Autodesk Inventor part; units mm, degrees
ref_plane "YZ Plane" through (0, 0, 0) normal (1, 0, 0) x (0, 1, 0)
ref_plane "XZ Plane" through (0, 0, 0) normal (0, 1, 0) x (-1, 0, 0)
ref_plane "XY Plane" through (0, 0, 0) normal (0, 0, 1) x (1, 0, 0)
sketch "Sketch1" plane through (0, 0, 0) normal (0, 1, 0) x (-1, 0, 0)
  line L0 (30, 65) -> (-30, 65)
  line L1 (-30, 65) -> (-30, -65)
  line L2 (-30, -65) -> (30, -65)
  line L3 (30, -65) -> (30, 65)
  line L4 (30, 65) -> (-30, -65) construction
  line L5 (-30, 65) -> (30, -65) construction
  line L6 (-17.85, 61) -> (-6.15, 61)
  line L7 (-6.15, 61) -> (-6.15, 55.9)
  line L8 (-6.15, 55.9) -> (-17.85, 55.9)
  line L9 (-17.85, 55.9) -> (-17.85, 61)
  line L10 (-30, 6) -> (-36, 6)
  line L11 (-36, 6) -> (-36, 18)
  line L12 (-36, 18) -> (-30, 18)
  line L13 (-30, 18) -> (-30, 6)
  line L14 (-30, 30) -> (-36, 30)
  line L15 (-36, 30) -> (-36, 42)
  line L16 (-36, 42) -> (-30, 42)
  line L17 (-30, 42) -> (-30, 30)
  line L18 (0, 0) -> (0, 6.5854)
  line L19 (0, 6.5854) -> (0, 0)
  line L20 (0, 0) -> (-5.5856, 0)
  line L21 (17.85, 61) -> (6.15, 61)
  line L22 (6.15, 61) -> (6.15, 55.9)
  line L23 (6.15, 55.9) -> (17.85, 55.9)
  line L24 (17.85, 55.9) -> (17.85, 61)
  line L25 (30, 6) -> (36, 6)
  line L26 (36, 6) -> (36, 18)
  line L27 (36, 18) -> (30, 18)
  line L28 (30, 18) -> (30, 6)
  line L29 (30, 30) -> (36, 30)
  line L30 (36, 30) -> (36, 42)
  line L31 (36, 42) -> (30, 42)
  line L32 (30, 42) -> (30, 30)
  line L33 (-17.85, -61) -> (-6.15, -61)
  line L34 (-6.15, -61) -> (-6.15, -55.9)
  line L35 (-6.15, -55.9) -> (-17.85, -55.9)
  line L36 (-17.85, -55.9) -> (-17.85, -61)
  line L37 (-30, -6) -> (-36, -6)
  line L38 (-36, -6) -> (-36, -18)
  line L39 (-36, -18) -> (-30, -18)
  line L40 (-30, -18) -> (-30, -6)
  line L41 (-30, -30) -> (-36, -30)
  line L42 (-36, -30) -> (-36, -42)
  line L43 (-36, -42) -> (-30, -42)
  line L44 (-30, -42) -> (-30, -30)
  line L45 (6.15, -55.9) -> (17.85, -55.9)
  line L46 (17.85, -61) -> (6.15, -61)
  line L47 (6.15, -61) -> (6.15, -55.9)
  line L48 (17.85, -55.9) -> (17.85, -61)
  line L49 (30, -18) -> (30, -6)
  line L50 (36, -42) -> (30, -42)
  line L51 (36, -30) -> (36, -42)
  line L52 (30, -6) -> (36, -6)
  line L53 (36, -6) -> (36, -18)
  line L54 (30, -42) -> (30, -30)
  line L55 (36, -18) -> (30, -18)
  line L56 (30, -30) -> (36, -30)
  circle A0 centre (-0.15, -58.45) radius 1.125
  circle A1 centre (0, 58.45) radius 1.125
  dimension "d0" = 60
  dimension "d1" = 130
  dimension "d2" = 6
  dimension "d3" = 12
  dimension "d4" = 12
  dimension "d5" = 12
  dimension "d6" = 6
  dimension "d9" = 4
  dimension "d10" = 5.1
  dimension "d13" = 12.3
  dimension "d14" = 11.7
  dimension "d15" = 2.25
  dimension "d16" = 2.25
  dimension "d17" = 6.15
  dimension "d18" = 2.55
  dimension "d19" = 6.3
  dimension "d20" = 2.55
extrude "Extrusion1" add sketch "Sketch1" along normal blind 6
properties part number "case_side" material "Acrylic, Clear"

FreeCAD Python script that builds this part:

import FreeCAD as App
import Part
import Sketcher


def add_polygon(sketch, points):
    """Adds a closed chain of lines whose ends are joined by coincident constraints."""
    first, n = sketch.GeometryCount, len(points)
    for a, b in zip(points, points[1:] + points[:1]):
        sketch.addGeometry(Part.LineSegment(App.Vector(*a, 0), App.Vector(*b, 0)), False)
    for i in range(n):
        sketch.addConstraint(Sketcher.Constraint("Coincident", first + i, 2, first + (i + 1) % n, 1))

doc = App.newDocument("Part")
body = doc.addObject("PartDesign::Body", "Body")

# Sketch on XZ plane
sketch1 = body.newObject("Sketcher::SketchObject", "Sketch")
sketch1.AttachmentSupport = (doc.getObject("XZ_Plane"), [""])
sketch1.MapMode = "FlatFace"
add_polygon(sketch1, [(-30, 42), (-30, 65), (30, 65), (30, 42), (36, 42), (36, 30), (30, 30), (30, 18), (36, 18), (36, 6), (30, 6), (30, -6), (36, -6), (36, -18), (30, -18), (30, -30), (36, -30), (36, -42), (30, -42), (30, -65), (-30, -65), (-30, -42), (-36, -42), (-36, -30), (-30, -30), (-30, -18), (-36, -18), (-36, -6), (-30, -6), (-30, 6), (-36, 6), (-36, 18), (-30, 18), (-30, 30), (-36, 30), (-36, 42)])  # lines 0-35
add_polygon(sketch1, [(6.2, -61), (17.9, -61), (17.9, -55.9), (6.2, -55.9)])  # lines 36-39
sketch1.addGeometry(Part.Circle(App.Vector(0.1, -58.5, 0), App.Vector(0, 0, 1), 1.1), False)  # 40
add_polygon(sketch1, [(-6.2, -61), (-6.2, -55.9), (-17.9, -55.9), (-17.9, -61)])  # lines 41-44
add_polygon(sketch1, [(17.9, 55.9), (17.9, 61), (6.2, 61), (6.2, 55.9)])  # lines 45-48
sketch1.addGeometry(Part.Circle(App.Vector(0, 58.5, 0), App.Vector(0, 0, 1), 1.1), False)  # 49
add_polygon(sketch1, [(-6.2, 61), (-17.9, 61), (-17.9, 55.9), (-6.2, 55.9)])  # lines 50-53
sketch1.addConstraint(Sketcher.Constraint("Vertical", 0))
sketch1.addConstraint(Sketcher.Constraint("Horizontal", 1))
sketch1.addConstraint(Sketcher.Constraint("Vertical", 2))
sketch1.addConstraint(Sketcher.Constraint("Horizontal", 3))
sketch1.addConstraint(Sketcher.Constraint("Vertical", 4))
sketch1.addConstraint(Sketcher.Constraint("Horizontal", 5))
sketch1.addConstraint(Sketcher.Constraint("Vertical", 6))
sketch1.addConstraint(Sketcher.Constraint("Horizontal", 7))
sketch1.addConstraint(Sketcher.Constraint("Vertical", 8))
sketch1.addConstraint(Sketcher.Constraint("Horizontal", 9))
sketch1.addConstraint(Sketcher.Constraint("Vertical", 10))
sketch1.addConstraint(Sketcher.Constraint("Horizontal", 11))
sketch1.addConstraint(Sketcher.Constraint("Vertical", 12))
sketch1.addConstraint(Sketcher.Constraint("Horizontal", 13))
sketch1.addConstraint(Sketcher.Constraint("Vertical", 14))
sketch1.addConstraint(Sketcher.Constraint("Horizontal", 15))
sketch1.addConstraint(Sketcher.Constraint("Vertical", 16))
sketch1.addConstraint(Sketcher.Constraint("Horizontal", 17))
sketch1.addConstraint(Sketcher.Constraint("Vertical", 18))
sketch1.addConstraint(Sketcher.Constraint("Horizontal", 19))
sketch1.addConstraint(Sketcher.Constraint("Vertical", 20))
sketch1.addConstraint(Sketcher.Constraint("Horizontal", 21))
sketch1.addConstraint(Sketcher.Constraint("Vertical", 22))
sketch1.addConstraint(Sketcher.Constraint("Horizontal", 23))
sketch1.addConstraint(Sketcher.Constraint("Vertical", 24))
sketch1.addConstraint(Sketcher.Constraint("Horizontal", 25))
sketch1.addConstraint(Sketcher.Constraint("Vertical", 26))
sketch1.addConstraint(Sketcher.Constraint("Horizontal", 27))
sketch1.addConstraint(Sketcher.Constraint("Vertical", 28))
sketch1.addConstraint(Sketcher.Constraint("Horizontal", 29))
sketch1.addConstraint(Sketcher.Constraint("Vertical", 30))
sketch1.addConstraint(Sketcher.Constraint("Horizontal", 31))
sketch1.addConstraint(Sketcher.Constraint("Vertical", 32))
sketch1.addConstraint(Sketcher.Constraint("Horizontal", 33))
sketch1.addConstraint(Sketcher.Constraint("Vertical", 34))
sketch1.addConstraint(Sketcher.Constraint("Horizontal", 35))
sketch1.addConstraint(Sketcher.Constraint("Horizontal", 36))
sketch1.addConstraint(Sketcher.Constraint("Vertical", 37))
sketch1.addConstraint(Sketcher.Constraint("Horizontal", 38))
sketch1.addConstraint(Sketcher.Constraint("Vertical", 39))
sketch1.addConstraint(Sketcher.Constraint("Vertical", 41))
sketch1.addConstraint(Sketcher.Constraint("Horizontal", 42))
sketch1.addConstraint(Sketcher.Constraint("Vertical", 43))
sketch1.addConstraint(Sketcher.Constraint("Horizontal", 44))
sketch1.addConstraint(Sketcher.Constraint("Vertical", 45))
sketch1.addConstraint(Sketcher.Constraint("Horizontal", 46))
sketch1.addConstraint(Sketcher.Constraint("Vertical", 47))
sketch1.addConstraint(Sketcher.Constraint("Horizontal", 48))
sketch1.addConstraint(Sketcher.Constraint("Horizontal", 50))
sketch1.addConstraint(Sketcher.Constraint("Vertical", 51))
sketch1.addConstraint(Sketcher.Constraint("Horizontal", 52))
sketch1.addConstraint(Sketcher.Constraint("Vertical", 53))
sketch1.addConstraint(Sketcher.Constraint("Equal", 40, 49))
sketch1.addConstraint(Sketcher.Constraint("Symmetric", 0, 2, 18, 2, -1, 1))
sketch1.addConstraint(Sketcher.Constraint("Symmetric", 2, 2, 20, 2, -1, 1))
sketch1.addConstraint(Sketcher.Constraint("Symmetric", 4, 2, 22, 2, -1, 1))
sketch1.addConstraint(Sketcher.Constraint("Symmetric", 6, 2, 24, 2, -1, 1))
sketch1.addConstraint(Sketcher.Constraint("Symmetric", 8, 2, 26, 2, -1, 1))
sketch1.addConstraint(Sketcher.Constraint("Symmetric", 10, 2, 28, 2, -1, 1))
sketch1.addConstraint(Sketcher.Constraint("Symmetric", 12, 2, 30, 2, -1, 1))
sketch1.addConstraint(Sketcher.Constraint("Symmetric", 14, 2, 32, 2, -1, 1))
sketch1.addConstraint(Sketcher.Constraint("Symmetric", 16, 2, 34, 2, -1, 1))
sketch1.addConstraint(Sketcher.Constraint("Symmetric", 43, 2, 45, 2, -1, 1))
sketch1.addConstraint(Sketcher.Constraint("Symmetric", 41, 2, 47, 2, -1, 1))
sketch1.addConstraint(Sketcher.Constraint("Symmetric", 36, 2, 50, 2, -1, 1))
sketch1.addConstraint(Sketcher.Constraint("Symmetric", 38, 2, 52, 2, -1, 1))
sketch1.addConstraint(Sketcher.Constraint("Symmetric", 17, 2, 20, 2, -2))
sketch1.addConstraint(Sketcher.Constraint("Symmetric", 15, 2, 22, 2, -2))
sketch1.addConstraint(Sketcher.Constraint("Symmetric", 13, 2, 24, 2, -2))
sketch1.addConstraint(Sketcher.Constraint("Symmetric", 11, 2, 26, 2, -2))
sketch1.addConstraint(Sketcher.Constraint("Symmetric", 38, 2, 41, 2, -2))
sketch1.addConstraint(Sketcher.Constraint("Symmetric", 36, 2, 43, 2, -2))
sketch1.addConstraint(Sketcher.Constraint("PointOnObject", 49, 3, -2))
sketch1.addConstraint(Sketcher.Constraint("Vertical", 2, 2, 5, 2))
sketch1.addConstraint(Sketcher.Constraint("Vertical", 4, 2, 7, 2))
sketch1.addConstraint(Sketcher.Constraint("Vertical", 6, 2, 9, 2))
sketch1.addConstraint(Sketcher.Constraint("Equal", 4, 6))
sketch1.addConstraint(Sketcher.Constraint("Equal", 6, 8))
sketch1.addConstraint(Sketcher.Constraint("Equal", 8, 10))
sketch1.addConstraint(Sketcher.Constraint("Diameter", 40, 2.25))
sketch1.addConstraint(Sketcher.Constraint("DistanceX", 1, 1, 1, 2, 60.0))
sketch1.addConstraint(Sketcher.Constraint("DistanceX", 3, 1, 3, 2, 6.0))
sketch1.addConstraint(Sketcher.Constraint("DistanceY", 4, 2, 4, 1, 12.0))
sketch1.addConstraint(Sketcher.Constraint("DistanceX", 36, 1, 36, 2, 11.7))
sketch1.addConstraint(Sketcher.Constraint("DistanceY", 37, 1, 37, 2, 5.1))
sketch1.addConstraint(Sketcher.Constraint("DistanceY", 18, 2, 36, 2, 4.0))
sketch1.addConstraint(Sketcher.Constraint("DistanceX", 40, 3, 38, 2, 6.0))
sketch1.addConstraint(Sketcher.Constraint("DistanceX", 41, 2, 40, 3, 6.3))
sketch1.addConstraint(Sketcher.Constraint("DistanceY", 0, 1, 0, 2, 23.0))
sketch1.addConstraint(Sketcher.Constraint("DistanceY", 36, 2, 40, 3, 2.55))
sketch1.addConstraint(Sketcher.Constraint("DistanceY", 49, 3, 45, 2, 2.55))
pad1 = body.newObject("PartDesign::Pad", "Pad")
pad1.Profile = sketch1
pad1.Length = 6
pad1.Reversed = True

doc.recompute()
